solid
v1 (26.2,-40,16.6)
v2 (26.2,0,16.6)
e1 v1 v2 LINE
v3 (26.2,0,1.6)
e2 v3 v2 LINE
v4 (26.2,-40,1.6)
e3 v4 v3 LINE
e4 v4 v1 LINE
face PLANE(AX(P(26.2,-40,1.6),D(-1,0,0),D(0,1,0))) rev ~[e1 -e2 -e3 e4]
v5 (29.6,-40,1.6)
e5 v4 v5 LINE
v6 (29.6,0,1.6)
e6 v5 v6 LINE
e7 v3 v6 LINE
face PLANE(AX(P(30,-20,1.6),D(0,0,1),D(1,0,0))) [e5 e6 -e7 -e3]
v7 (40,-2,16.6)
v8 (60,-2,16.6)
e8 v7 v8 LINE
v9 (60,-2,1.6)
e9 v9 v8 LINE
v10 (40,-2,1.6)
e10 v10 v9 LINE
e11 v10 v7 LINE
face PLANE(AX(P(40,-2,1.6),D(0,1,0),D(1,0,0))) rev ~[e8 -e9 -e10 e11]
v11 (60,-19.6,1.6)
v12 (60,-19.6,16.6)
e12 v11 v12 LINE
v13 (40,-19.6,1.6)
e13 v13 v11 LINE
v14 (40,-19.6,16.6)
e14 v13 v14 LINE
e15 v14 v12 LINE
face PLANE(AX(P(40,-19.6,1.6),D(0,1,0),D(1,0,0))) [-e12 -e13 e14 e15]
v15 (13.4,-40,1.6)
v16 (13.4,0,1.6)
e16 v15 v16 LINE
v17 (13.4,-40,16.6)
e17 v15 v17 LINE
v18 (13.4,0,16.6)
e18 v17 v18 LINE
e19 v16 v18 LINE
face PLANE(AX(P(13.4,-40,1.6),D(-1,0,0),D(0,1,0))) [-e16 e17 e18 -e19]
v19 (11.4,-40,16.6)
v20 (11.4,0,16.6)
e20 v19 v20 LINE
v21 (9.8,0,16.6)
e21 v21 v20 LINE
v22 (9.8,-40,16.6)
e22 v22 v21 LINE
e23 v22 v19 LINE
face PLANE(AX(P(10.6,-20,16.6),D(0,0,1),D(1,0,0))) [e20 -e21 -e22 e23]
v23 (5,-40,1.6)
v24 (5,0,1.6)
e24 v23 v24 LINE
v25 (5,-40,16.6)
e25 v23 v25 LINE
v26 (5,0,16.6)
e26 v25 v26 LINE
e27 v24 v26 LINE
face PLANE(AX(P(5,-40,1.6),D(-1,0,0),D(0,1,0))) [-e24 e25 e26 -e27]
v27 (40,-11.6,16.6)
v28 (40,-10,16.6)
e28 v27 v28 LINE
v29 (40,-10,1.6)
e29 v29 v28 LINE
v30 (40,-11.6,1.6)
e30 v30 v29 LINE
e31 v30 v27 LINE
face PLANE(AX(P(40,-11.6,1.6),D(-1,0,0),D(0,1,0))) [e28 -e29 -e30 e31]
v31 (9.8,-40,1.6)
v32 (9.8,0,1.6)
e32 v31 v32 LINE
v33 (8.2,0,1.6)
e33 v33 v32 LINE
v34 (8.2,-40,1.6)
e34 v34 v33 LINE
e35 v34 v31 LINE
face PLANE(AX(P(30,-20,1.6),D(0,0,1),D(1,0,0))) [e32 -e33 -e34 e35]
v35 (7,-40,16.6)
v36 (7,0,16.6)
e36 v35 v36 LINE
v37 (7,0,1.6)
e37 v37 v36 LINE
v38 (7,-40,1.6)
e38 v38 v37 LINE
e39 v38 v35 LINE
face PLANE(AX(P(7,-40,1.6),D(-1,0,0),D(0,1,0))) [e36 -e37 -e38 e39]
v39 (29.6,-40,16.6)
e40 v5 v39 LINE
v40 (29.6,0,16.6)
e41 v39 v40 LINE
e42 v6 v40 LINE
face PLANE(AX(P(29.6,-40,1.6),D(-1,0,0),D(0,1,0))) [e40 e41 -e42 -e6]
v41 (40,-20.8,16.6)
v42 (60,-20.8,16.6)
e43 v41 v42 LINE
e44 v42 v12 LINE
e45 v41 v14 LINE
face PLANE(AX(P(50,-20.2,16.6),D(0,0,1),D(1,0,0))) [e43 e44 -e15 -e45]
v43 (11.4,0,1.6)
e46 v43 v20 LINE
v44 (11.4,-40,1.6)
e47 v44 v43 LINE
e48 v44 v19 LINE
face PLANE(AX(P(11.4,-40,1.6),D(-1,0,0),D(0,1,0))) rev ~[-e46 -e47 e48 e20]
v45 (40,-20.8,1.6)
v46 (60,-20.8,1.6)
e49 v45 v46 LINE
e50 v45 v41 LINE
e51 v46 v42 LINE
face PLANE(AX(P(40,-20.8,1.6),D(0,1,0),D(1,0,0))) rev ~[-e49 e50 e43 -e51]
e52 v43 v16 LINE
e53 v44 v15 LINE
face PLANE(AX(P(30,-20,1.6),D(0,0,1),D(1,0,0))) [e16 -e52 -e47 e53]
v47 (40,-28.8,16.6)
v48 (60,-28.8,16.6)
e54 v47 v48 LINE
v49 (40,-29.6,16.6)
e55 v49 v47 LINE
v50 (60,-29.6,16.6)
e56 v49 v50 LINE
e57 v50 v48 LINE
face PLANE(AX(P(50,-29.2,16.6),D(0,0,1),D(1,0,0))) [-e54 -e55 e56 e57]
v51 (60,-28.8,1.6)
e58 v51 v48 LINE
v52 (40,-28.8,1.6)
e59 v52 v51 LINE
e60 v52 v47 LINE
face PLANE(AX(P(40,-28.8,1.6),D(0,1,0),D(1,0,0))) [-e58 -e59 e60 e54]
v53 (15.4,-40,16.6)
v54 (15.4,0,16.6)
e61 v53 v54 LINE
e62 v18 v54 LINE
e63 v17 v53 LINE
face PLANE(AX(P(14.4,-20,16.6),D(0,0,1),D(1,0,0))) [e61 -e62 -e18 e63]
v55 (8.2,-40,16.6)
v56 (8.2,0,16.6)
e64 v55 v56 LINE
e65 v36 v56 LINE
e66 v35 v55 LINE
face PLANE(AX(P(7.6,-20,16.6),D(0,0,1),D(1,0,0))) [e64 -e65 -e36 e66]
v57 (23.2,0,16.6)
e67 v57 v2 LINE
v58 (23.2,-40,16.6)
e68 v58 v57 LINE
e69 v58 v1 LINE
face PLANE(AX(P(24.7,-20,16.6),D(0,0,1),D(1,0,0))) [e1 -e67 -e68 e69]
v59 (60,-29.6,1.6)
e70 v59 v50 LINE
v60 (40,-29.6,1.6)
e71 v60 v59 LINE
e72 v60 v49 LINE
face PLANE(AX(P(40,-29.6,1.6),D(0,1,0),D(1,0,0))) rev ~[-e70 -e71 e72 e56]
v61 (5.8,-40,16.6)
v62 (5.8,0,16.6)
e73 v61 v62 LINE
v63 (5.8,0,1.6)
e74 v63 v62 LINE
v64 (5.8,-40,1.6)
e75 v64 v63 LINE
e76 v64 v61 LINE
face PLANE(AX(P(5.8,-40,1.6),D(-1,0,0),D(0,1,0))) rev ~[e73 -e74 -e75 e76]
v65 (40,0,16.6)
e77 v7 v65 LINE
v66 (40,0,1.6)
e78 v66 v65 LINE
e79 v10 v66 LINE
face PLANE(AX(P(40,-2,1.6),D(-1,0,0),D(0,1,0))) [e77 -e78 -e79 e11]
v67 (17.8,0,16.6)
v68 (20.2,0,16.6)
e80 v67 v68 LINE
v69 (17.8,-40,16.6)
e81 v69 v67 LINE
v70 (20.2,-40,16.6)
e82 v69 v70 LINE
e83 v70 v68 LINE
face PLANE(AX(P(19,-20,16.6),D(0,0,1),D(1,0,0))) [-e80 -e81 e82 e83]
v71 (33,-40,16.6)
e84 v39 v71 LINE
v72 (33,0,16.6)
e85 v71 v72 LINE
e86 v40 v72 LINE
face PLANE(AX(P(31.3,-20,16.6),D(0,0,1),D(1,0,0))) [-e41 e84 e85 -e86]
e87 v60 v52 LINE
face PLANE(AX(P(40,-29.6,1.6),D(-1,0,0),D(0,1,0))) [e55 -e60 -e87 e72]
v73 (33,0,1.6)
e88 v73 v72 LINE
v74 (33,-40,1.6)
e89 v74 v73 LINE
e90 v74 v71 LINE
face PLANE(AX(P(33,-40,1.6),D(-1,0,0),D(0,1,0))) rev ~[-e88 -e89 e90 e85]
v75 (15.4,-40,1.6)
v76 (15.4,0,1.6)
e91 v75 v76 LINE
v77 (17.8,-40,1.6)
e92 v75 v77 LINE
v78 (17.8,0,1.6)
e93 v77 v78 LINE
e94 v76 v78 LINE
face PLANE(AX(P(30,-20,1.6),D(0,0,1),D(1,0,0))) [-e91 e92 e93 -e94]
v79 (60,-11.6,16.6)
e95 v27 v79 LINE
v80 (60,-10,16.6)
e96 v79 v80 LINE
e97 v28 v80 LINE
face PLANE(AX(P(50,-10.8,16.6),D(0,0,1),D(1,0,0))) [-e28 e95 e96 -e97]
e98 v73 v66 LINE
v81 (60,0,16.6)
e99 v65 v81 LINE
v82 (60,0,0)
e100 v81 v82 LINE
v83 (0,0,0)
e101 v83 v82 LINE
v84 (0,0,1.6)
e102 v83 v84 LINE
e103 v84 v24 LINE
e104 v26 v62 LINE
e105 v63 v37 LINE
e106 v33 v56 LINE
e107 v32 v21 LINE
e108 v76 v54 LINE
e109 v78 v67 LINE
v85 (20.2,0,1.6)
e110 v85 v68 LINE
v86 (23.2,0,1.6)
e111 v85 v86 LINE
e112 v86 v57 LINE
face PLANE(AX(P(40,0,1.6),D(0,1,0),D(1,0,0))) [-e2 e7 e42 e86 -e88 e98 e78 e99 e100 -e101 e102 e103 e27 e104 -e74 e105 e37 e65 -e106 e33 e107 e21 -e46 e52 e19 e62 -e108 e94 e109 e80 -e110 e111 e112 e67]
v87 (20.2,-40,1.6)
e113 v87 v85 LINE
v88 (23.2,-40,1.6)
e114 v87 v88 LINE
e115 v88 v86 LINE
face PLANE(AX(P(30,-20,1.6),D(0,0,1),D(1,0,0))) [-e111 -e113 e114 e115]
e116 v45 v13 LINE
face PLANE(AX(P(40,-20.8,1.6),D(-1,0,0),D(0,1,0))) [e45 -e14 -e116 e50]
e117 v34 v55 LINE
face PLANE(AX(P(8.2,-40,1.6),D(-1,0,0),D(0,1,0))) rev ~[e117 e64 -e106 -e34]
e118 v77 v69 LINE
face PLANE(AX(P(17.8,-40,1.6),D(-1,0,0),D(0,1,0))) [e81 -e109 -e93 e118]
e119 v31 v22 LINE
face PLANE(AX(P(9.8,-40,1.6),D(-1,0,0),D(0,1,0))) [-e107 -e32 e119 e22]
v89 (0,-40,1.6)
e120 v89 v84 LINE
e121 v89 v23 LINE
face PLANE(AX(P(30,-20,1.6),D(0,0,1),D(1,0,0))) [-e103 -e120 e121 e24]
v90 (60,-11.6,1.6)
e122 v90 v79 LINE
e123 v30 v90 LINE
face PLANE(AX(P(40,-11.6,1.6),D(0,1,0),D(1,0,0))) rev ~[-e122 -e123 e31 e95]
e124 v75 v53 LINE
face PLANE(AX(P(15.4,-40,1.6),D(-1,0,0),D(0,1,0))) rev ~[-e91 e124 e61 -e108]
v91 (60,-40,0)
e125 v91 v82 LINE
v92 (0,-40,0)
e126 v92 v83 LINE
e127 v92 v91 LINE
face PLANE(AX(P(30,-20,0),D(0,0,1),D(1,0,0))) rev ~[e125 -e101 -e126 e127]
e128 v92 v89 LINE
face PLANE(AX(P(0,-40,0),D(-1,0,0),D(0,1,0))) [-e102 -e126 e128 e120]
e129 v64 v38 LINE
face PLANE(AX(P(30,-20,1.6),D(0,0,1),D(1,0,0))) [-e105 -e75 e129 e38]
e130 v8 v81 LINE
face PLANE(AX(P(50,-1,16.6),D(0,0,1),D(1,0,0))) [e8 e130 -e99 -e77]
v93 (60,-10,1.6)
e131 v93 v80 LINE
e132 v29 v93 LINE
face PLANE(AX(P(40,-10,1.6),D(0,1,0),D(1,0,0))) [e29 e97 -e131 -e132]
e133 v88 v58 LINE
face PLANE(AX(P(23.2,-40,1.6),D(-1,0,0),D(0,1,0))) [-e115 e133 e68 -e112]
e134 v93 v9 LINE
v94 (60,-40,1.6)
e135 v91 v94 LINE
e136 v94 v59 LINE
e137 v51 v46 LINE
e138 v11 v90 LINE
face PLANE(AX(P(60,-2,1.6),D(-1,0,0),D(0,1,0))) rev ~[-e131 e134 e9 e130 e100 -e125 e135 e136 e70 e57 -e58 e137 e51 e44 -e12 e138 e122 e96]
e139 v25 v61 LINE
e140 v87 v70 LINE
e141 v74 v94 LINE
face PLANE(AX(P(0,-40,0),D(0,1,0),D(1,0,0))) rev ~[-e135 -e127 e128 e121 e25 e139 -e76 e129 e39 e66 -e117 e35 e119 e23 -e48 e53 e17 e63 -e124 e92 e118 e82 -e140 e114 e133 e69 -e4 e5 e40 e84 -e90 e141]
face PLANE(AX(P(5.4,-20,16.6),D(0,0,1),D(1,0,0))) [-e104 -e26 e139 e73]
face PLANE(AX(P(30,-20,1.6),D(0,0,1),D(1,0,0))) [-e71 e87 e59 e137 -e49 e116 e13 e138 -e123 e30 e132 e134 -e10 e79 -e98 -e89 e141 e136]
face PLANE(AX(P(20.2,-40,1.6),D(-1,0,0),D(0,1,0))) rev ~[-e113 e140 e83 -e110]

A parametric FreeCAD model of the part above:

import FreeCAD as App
import Part
import Sketcher
from FreeCAD import Vector

doc = App.newDocument("Part")
params = doc.addObject("Spreadsheet::Sheet", "Params")
for row, (alias, value) in enumerate([
    ("sketch1_width", "60 mm"),
    ("sketch1_height", "40 mm"),
    ("pad1_length", "1.6 mm"),
    ("sketch2_width", "2 mm"),
    ("sketch2_width2", "3 mm"),
    ("sketch2_width3", "20 mm"),
    ("sketch2_height", "40 mm"),
    ("sketch2_width4", "0.8 mm"),
    ("pad2_length", "15 mm"),
], start=1):
    params.set(f"A{row}", alias)
    params.set(f"B{row}", "=" + value)
    params.setAlias(f"B{row}", alias)

body = doc.addObject("PartDesign::Body", "Body")

sketch1 = body.newObject("Sketcher::SketchObject", "Sketch")
sketch1.AttachmentSupport = (doc.getObject("XY_Plane"), [""])
sketch1.MapMode = "FlatFace"
sketch1.addGeometry(Part.LineSegment(Vector(0, 0, 0), Vector(0, -40, 0)), False)
sketch1.addGeometry(Part.LineSegment(Vector(0, -40, 0), Vector(60, -40, 0)), False)
sketch1.addGeometry(Part.LineSegment(Vector(60, -40, 0), Vector(60, 0, 0)), False)
sketch1.addGeometry(Part.LineSegment(Vector(60, 0, 0), Vector(0, 0, 0)), False)
sketch1.addConstraint(Sketcher.Constraint("Coincident", 0, 2, 1, 1))
sketch1.addConstraint(Sketcher.Constraint("Coincident", 1, 2, 2, 1))
sketch1.addConstraint(Sketcher.Constraint("Coincident", 2, 2, 3, 1))
sketch1.addConstraint(Sketcher.Constraint("Coincident", 3, 2, 0, 1))
sketch1.addConstraint(Sketcher.Constraint("Vertical", 0))
sketch1.addConstraint(Sketcher.Constraint("Horizontal", 1))
sketch1.addConstraint(Sketcher.Constraint("Vertical", 2))
sketch1.addConstraint(Sketcher.Constraint("Horizontal", 3))
sketch1.addConstraint(Sketcher.Constraint("Coincident", 3, 2, -1, 1))
sketch1.addConstraint(Sketcher.Constraint("DistanceX", 1, 1, 1, 2, 60.0))
sketch1.addConstraint(Sketcher.Constraint("DistanceY", 0, 2, 0, 1, 40.0))
sketch1.setExpression("Constraints[9]", "Params.sketch1_width")
sketch1.setExpression("Constraints[10]", "Params.sketch1_height")
pad1 = body.newObject("PartDesign::Pad", "Pad")
pad1.Profile = sketch1
pad1.setExpression("Length", "Params.pad1_length")

sketch2 = body.newObject("Sketcher::SketchObject", "Sketch001")
sketch2.AttachmentSupport = (doc.getObject("XY_Plane"), [""])
sketch2.MapMode = "FlatFace"
sketch2.AttachmentOffset = App.Placement(Vector(0, 0, 1.6), App.Rotation())
sketch2.addGeometry(Part.LineSegment(Vector(5, 0, 0), Vector(5, -40, 0)), False)
sketch2.addGeometry(Part.LineSegment(Vector(5, -40, 0), Vector(5.8, -40, 0)), False)
sketch2.addGeometry(Part.LineSegment(Vector(5.8, -40, 0), Vector(5.8, 0, 0)), False)
sketch2.addGeometry(Part.LineSegment(Vector(5.8, 0, 0), Vector(5, 0, 0)), False)
sketch2.addGeometry(Part.LineSegment(Vector(7, 0, 0), Vector(7, -40, 0)), False)
sketch2.addGeometry(Part.LineSegment(Vector(7, -40, 0), Vector(8.2, -40, 0)), False)
sketch2.addGeometry(Part.LineSegment(Vector(8.2, -40, 0), Vector(8.2, 0, 0)), False)
sketch2.addGeometry(Part.LineSegment(Vector(8.2, 0, 0), Vector(7, 0, 0)), False)
sketch2.addGeometry(Part.LineSegment(Vector(9.8, 0, 0), Vector(9.8, -40, 0)), False)
sketch2.addGeometry(Part.LineSegment(Vector(9.8, -40, 0), Vector(11.4, -40, 0)), False)
sketch2.addGeometry(Part.LineSegment(Vector(11.4, -40, 0), Vector(11.4, 0, 0)), False)
sketch2.addGeometry(Part.LineSegment(Vector(11.4, 0, 0), Vector(9.8, 0, 0)), False)
sketch2.addGeometry(Part.LineSegment(Vector(13.4, 0, 0), Vector(13.4, -40, 0)), False)
sketch2.addGeometry(Part.LineSegment(Vector(13.4, -40, 0), Vector(15.4, -40, 0)), False)
sketch2.addGeometry(Part.LineSegment(Vector(15.4, -40, 0), Vector(15.4, 0, 0)), False)
sketch2.addGeometry(Part.LineSegment(Vector(15.4, 0, 0), Vector(13.4, 0, 0)), False)
sketch2.addGeometry(Part.LineSegment(Vector(17.8, 0, 0), Vector(17.8, -40, 0)), False)
sketch2.addGeometry(Part.LineSegment(Vector(17.8, -40, 0), Vector(20.2, -40, 0)), False)
sketch2.addGeometry(Part.LineSegment(Vector(20.2, -40, 0), Vector(20.2, 0, 0)), False)
sketch2.addGeometry(Part.LineSegment(Vector(20.2, 0, 0), Vector(17.8, 0, 0)), False)
sketch2.addGeometry(Part.LineSegment(Vector(23.2, 0, 0), Vector(23.2, -40, 0)), False)
sketch2.addGeometry(Part.LineSegment(Vector(23.2, -40, 0), Vector(26.2, -40, 0)), False)
sketch2.addGeometry(Part.LineSegment(Vector(26.2, -40, 0), Vector(26.2, 0, 0)), False)
sketch2.addGeometry(Part.LineSegment(Vector(26.2, 0, 0), Vector(23.2, 0, 0)), False)
sketch2.addGeometry(Part.LineSegment(Vector(29.6, 0, 0), Vector(29.6, -40, 0)), False)
sketch2.addGeometry(Part.LineSegment(Vector(29.6, -40, 0), Vector(33, -40, 0)), False)
sketch2.addGeometry(Part.LineSegment(Vector(33, -40, 0), Vector(33, 0, 0)), False)
sketch2.addGeometry(Part.LineSegment(Vector(33, 0, 0), Vector(29.6, 0, 0)), False)
sketch2.addGeometry(Part.LineSegment(Vector(40, -28.8, 0), Vector(40, -29.6, 0)), False)
sketch2.addGeometry(Part.LineSegment(Vector(40, -29.6, 0), Vector(60, -29.6, 0)), False)
sketch2.addGeometry(Part.LineSegment(Vector(60, -29.6, 0), Vector(60, -28.8, 0)), False)
sketch2.addGeometry(Part.LineSegment(Vector(60, -28.8, 0), Vector(40, -28.8, 0)), False)
sketch2.addGeometry(Part.LineSegment(Vector(40, -19.6, 0), Vector(40, -20.8, 0)), False)
sketch2.addGeometry(Part.LineSegment(Vector(40, -20.8, 0), Vector(60, -20.8, 0)), False)
sketch2.addGeometry(Part.LineSegment(Vector(60, -20.8, 0), Vector(60, -19.6, 0)), False)
sketch2.addGeometry(Part.LineSegment(Vector(60, -19.6, 0), Vector(40, -19.6, 0)), False)
sketch2.addGeometry(Part.LineSegment(Vector(40, -10, 0), Vector(40, -11.6, 0)), False)
sketch2.addGeometry(Part.LineSegment(Vector(40, -11.6, 0), Vector(60, -11.6, 0)), False)
sketch2.addGeometry(Part.LineSegment(Vector(60, -11.6, 0), Vector(60, -10, 0)), False)
sketch2.addGeometry(Part.LineSegment(Vector(60, -10, 0), Vector(40, -10, 0)), False)
sketch2.addGeometry(Part.LineSegment(Vector(40, 0, 0), Vector(40, -2, 0)), False)
sketch2.addGeometry(Part.LineSegment(Vector(40, -2, 0), Vector(60, -2, 0)), False)
sketch2.addGeometry(Part.LineSegment(Vector(60, -2, 0), Vector(60, 0, 0)), False)
sketch2.addGeometry(Part.LineSegment(Vector(60, 0, 0), Vector(40, 0, 0)), False)
sketch2.addConstraint(Sketcher.Constraint("Coincident", 0, 2, 1, 1))
sketch2.addConstraint(Sketcher.Constraint("Coincident", 1, 2, 2, 1))
sketch2.addConstraint(Sketcher.Constraint("Coincident", 2, 2, 3, 1))
sketch2.addConstraint(Sketcher.Constraint("Coincident", 3, 2, 0, 1))
sketch2.addConstraint(Sketcher.Constraint("Coincident", 4, 2, 5, 1))
sketch2.addConstraint(Sketcher.Constraint("Coincident", 5, 2, 6, 1))
sketch2.addConstraint(Sketcher.Constraint("Coincident", 6, 2, 7, 1))
sketch2.addConstraint(Sketcher.Constraint("Coincident", 7, 2, 4, 1))
sketch2.addConstraint(Sketcher.Constraint("Coincident", 8, 2, 9, 1))
sketch2.addConstraint(Sketcher.Constraint("Coincident", 9, 2, 10, 1))
sketch2.addConstraint(Sketcher.Constraint("Coincident", 10, 2, 11, 1))
sketch2.addConstraint(Sketcher.Constraint("Coincident", 11, 2, 8, 1))
sketch2.addConstraint(Sketcher.Constraint("Coincident", 12, 2, 13, 1))
sketch2.addConstraint(Sketcher.Constraint("Coincident", 13, 2, 14, 1))
sketch2.addConstraint(Sketcher.Constraint("Coincident", 14, 2, 15, 1))
sketch2.addConstraint(Sketcher.Constraint("Coincident", 15, 2, 12, 1))
sketch2.addConstraint(Sketcher.Constraint("Coincident", 16, 2, 17, 1))
sketch2.addConstraint(Sketcher.Constraint("Coincident", 17, 2, 18, 1))
sketch2.addConstraint(Sketcher.Constraint("Coincident", 18, 2, 19, 1))
sketch2.addConstraint(Sketcher.Constraint("Coincident", 19, 2, 16, 1))
sketch2.addConstraint(Sketcher.Constraint("Coincident", 20, 2, 21, 1))
sketch2.addConstraint(Sketcher.Constraint("Coincident", 21, 2, 22, 1))
sketch2.addConstraint(Sketcher.Constraint("Coincident", 22, 2, 23, 1))
sketch2.addConstraint(Sketcher.Constraint("Coincident", 23, 2, 20, 1))
sketch2.addConstraint(Sketcher.Constraint("Coincident", 24, 2, 25, 1))
sketch2.addConstraint(Sketcher.Constraint("Coincident", 25, 2, 26, 1))
sketch2.addConstraint(Sketcher.Constraint("Coincident", 26, 2, 27, 1))
sketch2.addConstraint(Sketcher.Constraint("Coincident", 27, 2, 24, 1))
sketch2.addConstraint(Sketcher.Constraint("Coincident", 28, 2, 29, 1))
sketch2.addConstraint(Sketcher.Constraint("Coincident", 29, 2, 30, 1))
sketch2.addConstraint(Sketcher.Constraint("Coincident", 30, 2, 31, 1))
sketch2.addConstraint(Sketcher.Constraint("Coincident", 31, 2, 28, 1))
sketch2.addConstraint(Sketcher.Constraint("Coincident", 32, 2, 33, 1))
sketch2.addConstraint(Sketcher.Constraint("Coincident", 33, 2, 34, 1))
sketch2.addConstraint(Sketcher.Constraint("Coincident", 34, 2, 35, 1))
sketch2.addConstraint(Sketcher.Constraint("Coincident", 35, 2, 32, 1))
sketch2.addConstraint(Sketcher.Constraint("Coincident", 36, 2, 37, 1))
sketch2.addConstraint(Sketcher.Constraint("Coincident", 37, 2, 38, 1))
sketch2.addConstraint(Sketcher.Constraint("Coincident", 38, 2, 39, 1))
sketch2.addConstraint(Sketcher.Constraint("Coincident", 39, 2, 36, 1))
sketch2.addConstraint(Sketcher.Constraint("Coincident", 40, 2, 41, 1))
sketch2.addConstraint(Sketcher.Constraint("Coincident", 41, 2, 42, 1))
sketch2.addConstraint(Sketcher.Constraint("Coincident", 42, 2, 43, 1))
sketch2.addConstraint(Sketcher.Constraint("Coincident", 43, 2, 40, 1))
sketch2.addConstraint(Sketcher.Constraint("Vertical", 0))
sketch2.addConstraint(Sketcher.Constraint("Horizontal", 1))
sketch2.addConstraint(Sketcher.Constraint("Vertical", 2))
sketch2.addConstraint(Sketcher.Constraint("Horizontal", 3))
sketch2.addConstraint(Sketcher.Constraint("Vertical", 4))
sketch2.addConstraint(Sketcher.Constraint("Horizontal", 5))
sketch2.addConstraint(Sketcher.Constraint("Vertical", 6))
sketch2.addConstraint(Sketcher.Constraint("Horizontal", 7))
sketch2.addConstraint(Sketcher.Constraint("Vertical", 8))
sketch2.addConstraint(Sketcher.Constraint("Horizontal", 9))
sketch2.addConstraint(Sketcher.Constraint("Vertical", 10))
sketch2.addConstraint(Sketcher.Constraint("Horizontal", 11))
sketch2.addConstraint(Sketcher.Constraint("Vertical", 12))
sketch2.addConstraint(Sketcher.Constraint("Horizontal", 13))
sketch2.addConstraint(Sketcher.Constraint("Vertical", 14))
sketch2.addConstraint(Sketcher.Constraint("Horizontal", 15))
sketch2.addConstraint(Sketcher.Constraint("Vertical", 16))
sketch2.addConstraint(Sketcher.Constraint("Horizontal", 17))
sketch2.addConstraint(Sketcher.Constraint("Vertical", 18))
sketch2.addConstraint(Sketcher.Constraint("Horizontal", 19))
sketch2.addConstraint(Sketcher.Constraint("Vertical", 20))
sketch2.addConstraint(Sketcher.Constraint("Horizontal", 21))
sketch2.addConstraint(Sketcher.Constraint("Vertical", 22))
sketch2.addConstraint(Sketcher.Constraint("Horizontal", 23))
sketch2.addConstraint(Sketcher.Constraint("Vertical", 24))
sketch2.addConstraint(Sketcher.Constraint("Horizontal", 25))
sketch2.addConstraint(Sketcher.Constraint("Vertical", 26))
sketch2.addConstraint(Sketcher.Constraint("Horizontal", 27))
sketch2.addConstraint(Sketcher.Constraint("Vertical", 28))
sketch2.addConstraint(Sketcher.Constraint("Horizontal", 29))
sketch2.addConstraint(Sketcher.Constraint("Vertical", 30))
sketch2.addConstraint(Sketcher.Constraint("Horizontal", 31))
sketch2.addConstraint(Sketcher.Constraint("Vertical", 32))
sketch2.addConstraint(Sketcher.Constraint("Horizontal", 33))
sketch2.addConstraint(Sketcher.Constraint("Vertical", 34))
sketch2.addConstraint(Sketcher.Constraint("Horizontal", 35))
sketch2.addConstraint(Sketcher.Constraint("Vertical", 36))
sketch2.addConstraint(Sketcher.Constraint("Horizontal", 37))
sketch2.addConstraint(Sketcher.Constraint("Vertical", 38))
sketch2.addConstraint(Sketcher.Constraint("Horizontal", 39))
sketch2.addConstraint(Sketcher.Constraint("Vertical", 40))
sketch2.addConstraint(Sketcher.Constraint("Horizontal", 41))
sketch2.addConstraint(Sketcher.Constraint("Vertical", 42))
sketch2.addConstraint(Sketcher.Constraint("Horizontal", 43))
sketch2.addConstraint(Sketcher.Constraint("PointOnObject", 2, 2, -1))
sketch2.addConstraint(Sketcher.Constraint("PointOnObject", 6, 2, -1))
sketch2.addConstraint(Sketcher.Constraint("PointOnObject", 10, 2, -1))
sketch2.addConstraint(Sketcher.Constraint("PointOnObject", 14, 2, -1))
sketch2.addConstraint(Sketcher.Constraint("PointOnObject", 18, 2, -1))
sketch2.addConstraint(Sketcher.Constraint("PointOnObject", 22, 2, -1))
sketch2.addConstraint(Sketcher.Constraint("PointOnObject", 26, 2, -1))
sketch2.addConstraint(Sketcher.Constraint("PointOnObject", 42, 2, -1))
sketch2.addConstraint(Sketcher.Constraint("Horizontal", 1, 2, 4, 2))
sketch2.addConstraint(Sketcher.Constraint("Horizontal", 5, 2, 8, 2))
sketch2.addConstraint(Sketcher.Constraint("Horizontal", 9, 2, 12, 2))
sketch2.addConstraint(Sketcher.Constraint("Horizontal", 13, 2, 16, 2))
sketch2.addConstraint(Sketcher.Constraint("Horizontal", 17, 2, 20, 2))
sketch2.addConstraint(Sketcher.Constraint("Horizontal", 21, 2, 24, 2))
sketch2.addConstraint(Sketcher.Constraint("Vertical", 31, 2, 32, 2))
sketch2.addConstraint(Sketcher.Constraint("Vertical", 30, 2, 33, 2))
sketch2.addConstraint(Sketcher.Constraint("Vertical", 35, 2, 36, 2))
sketch2.addConstraint(Sketcher.Constraint("Vertical", 34, 2, 37, 2))
sketch2.addConstraint(Sketcher.Constraint("Vertical", 39, 2, 40, 2))
sketch2.addConstraint(Sketcher.Constraint("Vertical", 38, 2, 41, 2))
sketch2.addConstraint(Sketcher.Constraint("Equal", 3, 28))
sketch2.addConstraint(Sketcher.Constraint("Equal", 7, 32))
sketch2.addConstraint(Sketcher.Constraint("Equal", 11, 36))
sketch2.addConstraint(Sketcher.Constraint("Equal", 15, 40))
sketch2.addConstraint(Sketcher.Constraint("DistanceX", 13, 1, 13, 2, 2.0))
sketch2.addConstraint(Sketcher.Constraint("DistanceX", 21, 1, 21, 2, 3.0))
sketch2.addConstraint(Sketcher.Constraint("DistanceX", 29, 1, 29, 2, 20.0))
sketch2.addConstraint(Sketcher.Constraint("DistanceY", 0, 2, 0, 1, 40.0))
sketch2.addConstraint(Sketcher.Constraint("DistanceX", 1, 1, 1, 2, 0.8))
sketch2.addConstraint(Sketcher.Constraint("DistanceX", 5, 1, 5, 2, 1.2))
sketch2.addConstraint(Sketcher.Constraint("DistanceX", 9, 1, 9, 2, 1.6))
sketch2.addConstraint(Sketcher.Constraint("DistanceX", 17, 1, 17, 2, 2.4))
sketch2.addConstraint(Sketcher.Constraint("DistanceX", 25, 1, 25, 2, 3.4))
sketch2.addConstraint(Sketcher.Constraint("DistanceX", -1, 1, 0, 2, 5.0))
sketch2.addConstraint(Sketcher.Constraint("DistanceX", -1, 1, 4, 2, 7.0))
sketch2.addConstraint(Sketcher.Constraint("DistanceX", -1, 1, 25, 2, 33.0))
sketch2.addConstraint(Sketcher.Constraint("DistanceX", -1, 1, 28, 2, 40.0))
sketch2.addConstraint(Sketcher.Constraint("DistanceY", 38, 2, -1, 1, 10.0))
sketch2.addConstraint(Sketcher.Constraint("DistanceX", 1, 2, 8, 2, 4.0))
sketch2.addConstraint(Sketcher.Constraint("DistanceX", 9, 2, 12, 2, 2.0))
sketch2.addConstraint(Sketcher.Constraint("DistanceX", 8, 2, 16, 2, 8.0))
sketch2.addConstraint(Sketcher.Constraint("DistanceX", 17, 2, 20, 2, 3.0))
sketch2.addConstraint(Sketcher.Constraint("DistanceY", 31, 2, 32, 2, 8.0))
sketch2.addConstraint(Sketcher.Constraint("DistanceY", 35, 2, 36, 2, 8.0))
sketch2.setExpression("Constraints[112]", "Params.sketch2_width")
sketch2.setExpression("Constraints[113]", "Params.sketch2_width2")
sketch2.setExpression("Constraints[114]", "Params.sketch2_width3")
sketch2.setExpression("Constraints[115]", "Params.sketch2_height")
sketch2.setExpression("Constraints[116]", "Params.sketch2_width4")
pad2 = body.newObject("PartDesign::Pad", "Pad001")
pad2.Profile = sketch2
pad2.setExpression("Length", "Params.pad2_length")

doc.recompute()
